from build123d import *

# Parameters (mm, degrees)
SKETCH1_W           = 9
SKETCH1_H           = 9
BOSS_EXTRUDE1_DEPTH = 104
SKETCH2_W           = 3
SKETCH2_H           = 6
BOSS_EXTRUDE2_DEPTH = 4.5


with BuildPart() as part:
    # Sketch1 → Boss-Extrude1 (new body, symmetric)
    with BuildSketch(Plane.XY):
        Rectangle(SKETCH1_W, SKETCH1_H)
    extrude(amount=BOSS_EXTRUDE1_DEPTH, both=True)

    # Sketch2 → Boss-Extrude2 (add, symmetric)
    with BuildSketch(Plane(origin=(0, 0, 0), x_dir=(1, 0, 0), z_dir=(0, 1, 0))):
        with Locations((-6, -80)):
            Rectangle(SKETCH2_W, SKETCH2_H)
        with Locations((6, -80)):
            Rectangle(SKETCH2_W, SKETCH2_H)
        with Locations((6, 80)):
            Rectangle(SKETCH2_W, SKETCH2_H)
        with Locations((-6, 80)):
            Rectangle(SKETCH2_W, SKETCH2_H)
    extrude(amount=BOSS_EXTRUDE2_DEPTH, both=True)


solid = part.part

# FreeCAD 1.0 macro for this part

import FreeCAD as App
import Part
import Sketcher

V = App.Vector

doc = App.newDocument("Part")
body = doc.addObject("PartDesign::Body", "Body")

# Sketch on XY plane
sketch1 = body.newObject("Sketcher::SketchObject", "Sketch")
sketch1.AttachmentSupport = (doc.getObject("XY_Plane"), [""])
sketch1.MapMode = "FlatFace"
sketch1.addGeometry([
    Part.LineSegment(V(-4, 4, 0), V(-4, -4, 0)),
    Part.LineSegment(V(-4, -4, 0), V(4, -4, 0)),
    Part.LineSegment(V(4, -4, 0), V(4, 4, 0)),
    Part.LineSegment(V(4, 4, 0), V(-4, 4, 0)),
], False)
sketch1.addConstraint([
    Sketcher.Constraint("Coincident", 0, 2, 1, 1),
    Sketcher.Constraint("Coincident", 1, 2, 2, 1),
    Sketcher.Constraint("Coincident", 2, 2, 3, 1),
    Sketcher.Constraint("Coincident", 3, 2, 0, 1),
    Sketcher.Constraint("Vertical", 0),
    Sketcher.Constraint("Horizontal", 1),
    Sketcher.Constraint("Vertical", 2),
    Sketcher.Constraint("Horizontal", 3),
    Sketcher.Constraint("Symmetric", 0, 2, 2, 2, -1, 1),
    Sketcher.Constraint("Equal", 3, 0),
    Sketcher.Constraint("DistanceX", 1, 1, 1, 2, 9.0),
])
pad1 = body.newObject("PartDesign::Pad", "Pad")
pad1.Profile = sketch1
pad1.Length = 208
pad1.Midplane = True

# Sketch on XZ plane
sketch2 = body.newObject("Sketcher::SketchObject", "Sketch001")
sketch2.AttachmentSupport = (doc.getObject("XZ_Plane"), [""])
sketch2.MapMode = "FlatFace"
sketch2.addGeometry([
    Part.LineSegment(V(-7.5, 77, 0), V(-7.5, 83, 0)),  # 0
    Part.LineSegment(V(-7.5, 83, 0), V(-4.5, 83, 0)),  # 1
    Part.LineSegment(V(-4.5, 83, 0), V(-4.5, 77, 0)),  # 2
    Part.LineSegment(V(-4.5, 77, 0), V(-7.5, 77, 0)),  # 3
    Part.LineSegment(V(4.5, 77, 0), V(4.5, 83, 0)),  # 4
    Part.LineSegment(V(4.5, 83, 0), V(7.5, 83, 0)),  # 5
    Part.LineSegment(V(7.5, 83, 0), V(7.5, 77, 0)),  # 6
    Part.LineSegment(V(7.5, 77, 0), V(4.5, 77, 0)),  # 7
    Part.LineSegment(V(4.5, -83, 0), V(4.5, -77, 0)),  # 8
    Part.LineSegment(V(4.5, -77, 0), V(7.5, -77, 0)),  # 9
    Part.LineSegment(V(7.5, -77, 0), V(7.5, -83, 0)),  # 10
    Part.LineSegment(V(7.5, -83, 0), V(4.5, -83, 0)),  # 11
    Part.LineSegment(V(-7.5, -83, 0), V(-7.5, -77, 0)),  # 12
    Part.LineSegment(V(-7.5, -77, 0), V(-4.5, -77, 0)),  # 13
    Part.LineSegment(V(-4.5, -77, 0), V(-4.5, -83, 0)),  # 14
    Part.LineSegment(V(-4.5, -83, 0), V(-7.5, -83, 0)),  # 15
], False)
sketch2.addConstraint([
    Sketcher.Constraint("Coincident", 0, 2, 1, 1),
    Sketcher.Constraint("Coincident", 1, 2, 2, 1),
    Sketcher.Constraint("Coincident", 2, 2, 3, 1),
    Sketcher.Constraint("Coincident", 3, 2, 0, 1),
    Sketcher.Constraint("Coincident", 4, 2, 5, 1),
    Sketcher.Constraint("Coincident", 5, 2, 6, 1),
    Sketcher.Constraint("Coincident", 6, 2, 7, 1),
    Sketcher.Constraint("Coincident", 7, 2, 4, 1),
    Sketcher.Constraint("Coincident", 8, 2, 9, 1),
    Sketcher.Constraint("Coincident", 9, 2, 10, 1),
    Sketcher.Constraint("Coincident", 10, 2, 11, 1),
    Sketcher.Constraint("Coincident", 11, 2, 8, 1),
    Sketcher.Constraint("Coincident", 12, 2, 13, 1),
    Sketcher.Constraint("Coincident", 13, 2, 14, 1),
    Sketcher.Constraint("Coincident", 14, 2, 15, 1),
    Sketcher.Constraint("Coincident", 15, 2, 12, 1),
    Sketcher.Constraint("Vertical", 0),
    Sketcher.Constraint("Horizontal", 1),
    Sketcher.Constraint("Vertical", 2),
    Sketcher.Constraint("Horizontal", 3),
    Sketcher.Constraint("Vertical", 4),
    Sketcher.Constraint("Horizontal", 5),
    Sketcher.Constraint("Vertical", 6),
    Sketcher.Constraint("Horizontal", 7),
    Sketcher.Constraint("Vertical", 8),
    Sketcher.Constraint("Horizontal", 9),
    Sketcher.Constraint("Vertical", 10),
    Sketcher.Constraint("Horizontal", 11),
    Sketcher.Constraint("Vertical", 12),
    Sketcher.Constraint("Horizontal", 13),
    Sketcher.Constraint("Vertical", 14),
    Sketcher.Constraint("Horizontal", 15),
    Sketcher.Constraint("Symmetric", 2, 2, 8, 2, -1, 1),
    Sketcher.Constraint("Symmetric", 0, 2, 10, 2, -1, 1),
    Sketcher.Constraint("Symmetric", 6, 2, 12, 2, -1, 1),
    Sketcher.Constraint("Symmetric", 4, 2, 14, 2, -1, 1),
    Sketcher.Constraint("Symmetric", 1, 2, 4, 2, -2),
    Sketcher.Constraint("Symmetric", 3, 2, 6, 2, -2),
    Sketcher.Constraint("DistanceX", 1, 1, 1, 2, 3.0),
    Sketcher.Constraint("DistanceY", 0, 1, 0, 2, 6.0),
    Sketcher.Constraint("DistanceY", -1, 1, 0, 2, 83.0),
    Sketcher.Constraint("DistanceX", 1, 2, 4, 2, 9.0),
])
pad2 = body.newObject("PartDesign::Pad", "Pad001")
pad2.Profile = sketch2
pad2.Length = 9
pad2.Midplane = True

doc.recompute()
